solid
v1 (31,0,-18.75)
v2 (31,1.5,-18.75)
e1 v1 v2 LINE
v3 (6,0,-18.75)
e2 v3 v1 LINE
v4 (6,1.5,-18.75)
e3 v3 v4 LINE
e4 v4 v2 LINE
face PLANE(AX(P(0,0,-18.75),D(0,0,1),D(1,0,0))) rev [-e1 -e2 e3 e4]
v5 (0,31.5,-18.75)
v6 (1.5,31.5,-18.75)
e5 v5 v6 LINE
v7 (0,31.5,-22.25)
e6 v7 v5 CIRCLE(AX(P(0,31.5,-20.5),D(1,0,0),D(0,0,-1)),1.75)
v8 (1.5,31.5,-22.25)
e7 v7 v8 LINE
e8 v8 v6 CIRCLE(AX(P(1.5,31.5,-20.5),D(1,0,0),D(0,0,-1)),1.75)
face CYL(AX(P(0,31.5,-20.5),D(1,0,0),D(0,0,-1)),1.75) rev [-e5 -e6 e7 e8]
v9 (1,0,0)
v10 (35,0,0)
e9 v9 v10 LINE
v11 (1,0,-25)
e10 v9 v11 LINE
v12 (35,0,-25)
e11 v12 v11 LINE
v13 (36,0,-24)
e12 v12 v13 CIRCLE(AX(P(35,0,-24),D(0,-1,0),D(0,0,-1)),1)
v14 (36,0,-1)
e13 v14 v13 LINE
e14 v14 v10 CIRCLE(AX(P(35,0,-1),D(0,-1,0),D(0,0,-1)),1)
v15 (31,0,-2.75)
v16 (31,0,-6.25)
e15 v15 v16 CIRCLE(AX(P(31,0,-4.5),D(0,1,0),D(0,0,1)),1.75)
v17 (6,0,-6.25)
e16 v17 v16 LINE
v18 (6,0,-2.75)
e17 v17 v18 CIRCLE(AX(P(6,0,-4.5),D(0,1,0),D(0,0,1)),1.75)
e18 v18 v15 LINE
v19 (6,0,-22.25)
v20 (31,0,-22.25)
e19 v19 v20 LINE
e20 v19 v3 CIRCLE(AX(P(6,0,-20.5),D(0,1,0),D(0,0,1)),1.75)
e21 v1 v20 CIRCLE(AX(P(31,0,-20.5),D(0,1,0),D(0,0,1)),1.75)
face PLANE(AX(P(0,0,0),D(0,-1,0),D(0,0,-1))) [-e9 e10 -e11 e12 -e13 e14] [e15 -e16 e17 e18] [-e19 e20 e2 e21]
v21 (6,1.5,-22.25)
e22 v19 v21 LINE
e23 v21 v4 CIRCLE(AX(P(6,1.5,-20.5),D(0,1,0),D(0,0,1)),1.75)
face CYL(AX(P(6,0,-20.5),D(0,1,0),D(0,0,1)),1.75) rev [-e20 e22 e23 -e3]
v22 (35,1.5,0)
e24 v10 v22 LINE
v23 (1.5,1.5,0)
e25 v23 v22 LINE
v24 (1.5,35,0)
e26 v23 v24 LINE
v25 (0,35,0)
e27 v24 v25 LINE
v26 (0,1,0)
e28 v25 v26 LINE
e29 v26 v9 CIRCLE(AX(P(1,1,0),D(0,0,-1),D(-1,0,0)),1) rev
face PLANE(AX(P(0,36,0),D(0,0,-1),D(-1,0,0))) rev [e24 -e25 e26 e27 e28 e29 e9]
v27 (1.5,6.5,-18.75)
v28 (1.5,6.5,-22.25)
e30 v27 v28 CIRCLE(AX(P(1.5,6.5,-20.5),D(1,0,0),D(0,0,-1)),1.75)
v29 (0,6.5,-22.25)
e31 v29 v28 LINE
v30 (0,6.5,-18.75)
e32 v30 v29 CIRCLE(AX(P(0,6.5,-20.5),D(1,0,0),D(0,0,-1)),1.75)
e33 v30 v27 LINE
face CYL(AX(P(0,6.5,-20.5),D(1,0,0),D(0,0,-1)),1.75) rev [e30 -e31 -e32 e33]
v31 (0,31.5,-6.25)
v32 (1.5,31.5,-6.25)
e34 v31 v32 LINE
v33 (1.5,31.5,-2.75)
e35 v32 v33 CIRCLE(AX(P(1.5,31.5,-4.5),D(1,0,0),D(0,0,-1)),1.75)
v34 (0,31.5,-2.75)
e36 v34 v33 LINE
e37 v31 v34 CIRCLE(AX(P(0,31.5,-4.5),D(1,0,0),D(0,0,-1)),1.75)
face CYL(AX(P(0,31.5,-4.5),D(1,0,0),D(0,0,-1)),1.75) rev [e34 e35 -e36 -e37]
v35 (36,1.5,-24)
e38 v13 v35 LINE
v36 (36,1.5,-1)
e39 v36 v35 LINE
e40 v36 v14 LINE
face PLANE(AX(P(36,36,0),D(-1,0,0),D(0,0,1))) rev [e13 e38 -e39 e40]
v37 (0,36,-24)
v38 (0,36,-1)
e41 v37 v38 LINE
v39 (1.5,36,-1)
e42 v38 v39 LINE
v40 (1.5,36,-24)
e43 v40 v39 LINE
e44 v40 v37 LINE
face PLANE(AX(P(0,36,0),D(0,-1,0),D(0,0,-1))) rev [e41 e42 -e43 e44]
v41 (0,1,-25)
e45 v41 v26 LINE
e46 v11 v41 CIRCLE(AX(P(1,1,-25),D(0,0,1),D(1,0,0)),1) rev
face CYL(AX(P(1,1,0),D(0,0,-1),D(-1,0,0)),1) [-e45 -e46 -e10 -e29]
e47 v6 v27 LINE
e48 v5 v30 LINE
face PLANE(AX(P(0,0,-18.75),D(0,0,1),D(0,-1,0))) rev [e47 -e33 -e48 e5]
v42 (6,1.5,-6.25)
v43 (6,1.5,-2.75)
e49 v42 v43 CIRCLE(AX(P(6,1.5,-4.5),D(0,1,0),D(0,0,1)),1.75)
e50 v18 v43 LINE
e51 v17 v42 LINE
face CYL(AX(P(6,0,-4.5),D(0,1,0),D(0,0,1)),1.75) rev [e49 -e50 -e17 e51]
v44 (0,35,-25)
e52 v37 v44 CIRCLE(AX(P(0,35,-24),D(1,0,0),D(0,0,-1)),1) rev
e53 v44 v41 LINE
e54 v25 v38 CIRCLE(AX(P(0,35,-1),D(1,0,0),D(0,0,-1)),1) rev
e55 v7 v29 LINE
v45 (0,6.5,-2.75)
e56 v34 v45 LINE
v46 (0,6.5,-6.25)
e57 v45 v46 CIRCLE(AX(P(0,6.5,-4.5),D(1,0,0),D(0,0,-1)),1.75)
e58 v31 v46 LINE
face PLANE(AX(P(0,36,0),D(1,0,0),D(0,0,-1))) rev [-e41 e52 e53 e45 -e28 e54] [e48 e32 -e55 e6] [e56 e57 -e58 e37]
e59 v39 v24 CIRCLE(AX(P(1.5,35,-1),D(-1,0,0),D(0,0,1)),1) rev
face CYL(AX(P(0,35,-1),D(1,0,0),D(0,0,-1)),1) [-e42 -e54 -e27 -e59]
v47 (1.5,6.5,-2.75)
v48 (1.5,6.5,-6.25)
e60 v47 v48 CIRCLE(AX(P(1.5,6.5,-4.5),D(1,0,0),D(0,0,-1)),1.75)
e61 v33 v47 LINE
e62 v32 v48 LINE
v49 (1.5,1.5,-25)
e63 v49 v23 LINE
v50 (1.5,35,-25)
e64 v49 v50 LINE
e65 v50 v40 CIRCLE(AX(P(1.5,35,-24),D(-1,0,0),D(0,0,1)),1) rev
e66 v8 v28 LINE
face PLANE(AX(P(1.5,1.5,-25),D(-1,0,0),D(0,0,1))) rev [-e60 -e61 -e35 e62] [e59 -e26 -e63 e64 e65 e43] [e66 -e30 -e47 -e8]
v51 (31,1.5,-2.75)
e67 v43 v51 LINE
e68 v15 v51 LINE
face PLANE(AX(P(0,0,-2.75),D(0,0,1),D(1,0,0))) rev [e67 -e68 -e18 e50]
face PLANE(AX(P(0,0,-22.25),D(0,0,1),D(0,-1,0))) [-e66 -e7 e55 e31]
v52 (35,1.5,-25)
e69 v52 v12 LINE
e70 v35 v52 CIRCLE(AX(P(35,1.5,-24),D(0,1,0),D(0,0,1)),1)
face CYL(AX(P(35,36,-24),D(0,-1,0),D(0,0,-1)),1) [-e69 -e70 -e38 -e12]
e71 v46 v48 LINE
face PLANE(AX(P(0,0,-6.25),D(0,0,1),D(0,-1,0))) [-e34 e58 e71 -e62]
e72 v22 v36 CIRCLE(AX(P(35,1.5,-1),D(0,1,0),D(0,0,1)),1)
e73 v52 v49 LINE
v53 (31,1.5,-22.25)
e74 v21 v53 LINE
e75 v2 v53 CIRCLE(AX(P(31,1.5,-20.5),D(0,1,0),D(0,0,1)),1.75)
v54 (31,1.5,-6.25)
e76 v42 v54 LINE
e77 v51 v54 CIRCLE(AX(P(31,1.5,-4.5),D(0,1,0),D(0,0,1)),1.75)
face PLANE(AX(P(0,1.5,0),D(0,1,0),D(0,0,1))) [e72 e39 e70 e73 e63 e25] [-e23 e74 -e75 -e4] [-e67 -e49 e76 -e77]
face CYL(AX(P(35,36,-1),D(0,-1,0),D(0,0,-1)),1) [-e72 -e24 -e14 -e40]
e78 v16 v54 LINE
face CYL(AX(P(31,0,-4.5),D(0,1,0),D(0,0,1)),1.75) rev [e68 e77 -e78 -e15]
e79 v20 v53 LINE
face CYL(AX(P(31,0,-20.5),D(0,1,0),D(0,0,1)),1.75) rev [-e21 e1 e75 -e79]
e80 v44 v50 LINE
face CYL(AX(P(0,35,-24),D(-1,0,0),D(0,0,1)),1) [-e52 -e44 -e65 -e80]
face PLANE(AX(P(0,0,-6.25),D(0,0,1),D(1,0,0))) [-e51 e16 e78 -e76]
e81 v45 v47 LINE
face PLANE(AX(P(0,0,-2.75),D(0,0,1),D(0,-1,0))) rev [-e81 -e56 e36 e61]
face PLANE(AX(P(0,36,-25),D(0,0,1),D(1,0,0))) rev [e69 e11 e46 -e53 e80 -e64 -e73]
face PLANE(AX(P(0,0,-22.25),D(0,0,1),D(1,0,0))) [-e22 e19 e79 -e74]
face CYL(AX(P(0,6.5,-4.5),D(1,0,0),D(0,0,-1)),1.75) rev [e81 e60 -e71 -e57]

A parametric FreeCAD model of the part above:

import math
import FreeCAD as App
import Part
import Sketcher


def edges_at(feature, points):
    """Names of the edges that pass closest to the given points."""
    edges = feature.Shape.Edges
    near = lambda p: min(range(len(edges)), key=lambda i: edges[i].distToShape(Part.Vertex(*p))[0])
    return sorted({f"Edge{near(p) + 1}" for p in points})

doc = App.newDocument("Part")
body = doc.addObject("PartDesign::Body", "Body")

# Sketch on XZ plane
sketch1 = doc.addObject("Sketcher::SketchObject", "Sketch")
body.addObject(sketch1)
sketch1.AttachmentSupport = (doc.XZ_Plane, [""])
sketch1.MapMode = "FlatFace"
sketch1.addGeometry(Part.LineSegment(App.Vector(0, -25, 0), App.Vector(0, 0, 0)), False)
sketch1.addGeometry(Part.LineSegment(App.Vector(0, 0, 0), App.Vector(36, 0, 0)), False)
sketch1.addGeometry(Part.LineSegment(App.Vector(36, 0, 0), App.Vector(36, -25, 0)), False)
sketch1.addGeometry(Part.LineSegment(App.Vector(36, -25, 0), App.Vector(0, -25, 0)), False)
sketch1.addConstraint(Sketcher.Constraint("Coincident", 0, 2, 1, 1))
sketch1.addConstraint(Sketcher.Constraint("Coincident", 1, 2, 2, 1))
sketch1.addConstraint(Sketcher.Constraint("Coincident", 2, 2, 3, 1))
sketch1.addConstraint(Sketcher.Constraint("Coincident", 3, 2, 0, 1))
sketch1.addConstraint(Sketcher.Constraint("Vertical", 0))
sketch1.addConstraint(Sketcher.Constraint("Horizontal", 1))
sketch1.addConstraint(Sketcher.Constraint("Vertical", 2))
sketch1.addConstraint(Sketcher.Constraint("Horizontal", 3))
sketch1.addConstraint(Sketcher.Constraint("Coincident", 0, 2, -1, 1))
sketch1.addConstraint(Sketcher.Constraint("DistanceX", 1, 1, 1, 2, 36.0))
sketch1.addConstraint(Sketcher.Constraint("DistanceY", 0, 1, 0, 2, 25.0))
pad1 = doc.addObject("PartDesign::Pad", "Pad")
body.addObject(pad1)
pad1.Profile = sketch1
pad1.Length = 36
pad1.Reversed = True

# Sketch on XZ plane
sketch2 = doc.addObject("Sketcher::SketchObject", "Sketch001")
body.addObject(sketch2)
sketch2.AttachmentSupport = (doc.XZ_Plane, [""])
sketch2.MapMode = "FlatFace"
sketch2.AttachmentOffset = App.Placement(App.Vector(0, 0, -36), App.Rotation())
sketch2.addGeometry(Part.LineSegment(App.Vector(2, -25, 0), App.Vector(2, 0, 0)), False)
sketch2.addGeometry(Part.LineSegment(App.Vector(2, 0, 0), App.Vector(36, 0, 0)), False)
sketch2.addGeometry(Part.LineSegment(App.Vector(36, 0, 0), App.Vector(36, -25, 0)), False)
sketch2.addGeometry(Part.LineSegment(App.Vector(36, -25, 0), App.Vector(2, -25, 0)), False)
sketch2.addConstraint(Sketcher.Constraint("Coincident", 0, 2, 1, 1))
sketch2.addConstraint(Sketcher.Constraint("Coincident", 1, 2, 2, 1))
sketch2.addConstraint(Sketcher.Constraint("Coincident", 2, 2, 3, 1))
sketch2.addConstraint(Sketcher.Constraint("Coincident", 3, 2, 0, 1))
sketch2.addConstraint(Sketcher.Constraint("Vertical", 0))
sketch2.addConstraint(Sketcher.Constraint("Horizontal", 1))
sketch2.addConstraint(Sketcher.Constraint("Vertical", 2))
sketch2.addConstraint(Sketcher.Constraint("Horizontal", 3))
sketch2.addConstraint(Sketcher.Constraint("PointOnObject", 0, 2, -1))
sketch2.addConstraint(Sketcher.Constraint("DistanceY", 0, 1, 0, 2, 25.0))
sketch2.addConstraint(Sketcher.Constraint("DistanceX", 1, 1, 1, 2, 34.5))
sketch2.addConstraint(Sketcher.Constraint("DistanceX", -1, 1, 1, 2, 36.0))
pocket1 = doc.addObject("PartDesign::Pocket", "Pocket")
body.addObject(pocket1)
pocket1.Profile = sketch2
pocket1.Length = 34.5
pocket1.Reversed = True
doc.recompute()

fillet = doc.addObject("PartDesign::Fillet", "Fillet")
body.addObject(fillet)
fillet.Base = (pocket1, edges_at(pocket1, [
    (0.75, 36, -25),
    (36, 0.75, -25),
    (36, 0.75, 0),
    (0, 0, -12.5),
    (0.75, 36, 0),
]))
fillet.Radius = 1

# Sketch on XZ plane
sketch3 = doc.addObject("Sketcher::SketchObject", "Sketch002")
body.addObject(sketch3)
sketch3.AttachmentSupport = (doc.XZ_Plane, [""])
sketch3.MapMode = "FlatFace"
sketch3.AttachmentOffset = App.Placement(App.Vector(0, 0, -1.5), App.Rotation())
sketch3.addGeometry(Part.LineSegment(App.Vector(31, -6.2, 0), App.Vector(6, -6.2, 0)), False)
sketch3.addGeometry(Part.ArcOfCircle(Part.Circle(App.Vector(6, -4.5, 0), App.Vector(0, 0, 1), 1.8), math.radians(90), math.radians(270)), False)
sketch3.addGeometry(Part.LineSegment(App.Vector(6, -2.8, 0), App.Vector(31, -2.8, 0)), False)
sketch3.addGeometry(Part.ArcOfCircle(Part.Circle(App.Vector(31, -4.5, 0), App.Vector(0, 0, 1), 1.8), math.radians(-90), math.radians(90)), False)
sketch3.addGeometry(Part.LineSegment(App.Vector(6, -18.8, 0), App.Vector(31, -18.8, 0)), False)
sketch3.addGeometry(Part.ArcOfCircle(Part.Circle(App.Vector(31, -20.5, 0), App.Vector(0, 0, 1), 1.8), math.radians(-90), math.radians(90)), False)
sketch3.addGeometry(Part.LineSegment(App.Vector(31, -22.2, 0), App.Vector(6, -22.2, 0)), False)
sketch3.addGeometry(Part.ArcOfCircle(Part.Circle(App.Vector(6, -20.5, 0), App.Vector(0, 0, 1), 1.8), math.radians(90), math.radians(270)), False)
sketch3.addConstraint(Sketcher.Constraint("Tangent", 0, 2, 1, 2))
sketch3.addConstraint(Sketcher.Constraint("Tangent", 1, 1, 2, 1))
sketch3.addConstraint(Sketcher.Constraint("Tangent", 2, 2, 3, 2))
sketch3.addConstraint(Sketcher.Constraint("Tangent", 3, 1, 0, 1))
sketch3.addConstraint(Sketcher.Constraint("Tangent", 4, 2, 5, 2))
sketch3.addConstraint(Sketcher.Constraint("Tangent", 5, 1, 6, 1))
sketch3.addConstraint(Sketcher.Constraint("Tangent", 6, 2, 7, 2))
sketch3.addConstraint(Sketcher.Constraint("Tangent", 7, 1, 4, 1))
sketch3.addConstraint(Sketcher.Constraint("Horizontal", 0))
sketch3.addConstraint(Sketcher.Constraint("Horizontal", 2))
sketch3.addConstraint(Sketcher.Constraint("Horizontal", 4))
sketch3.addConstraint(Sketcher.Constraint("Horizontal", 6))
sketch3.addConstraint(Sketcher.Constraint("Equal", 3, 5))
sketch3.addConstraint(Sketcher.Constraint("Vertical", 3, 3, 5, 3))
sketch3.addConstraint(Sketcher.Constraint("Vertical", 1, 3, 7, 3))
sketch3.addConstraint(Sketcher.Constraint("DistanceX", 0, 2, 0, 1, 25.0))
sketch3.addConstraint(Sketcher.Constraint("Radius", 1, 1.75))
sketch3.addConstraint(Sketcher.Constraint("DistanceX", -1, 1, 1, 3, 6.0))
sketch3.addConstraint(Sketcher.Constraint("DistanceY", 5, 3, 3, 3, 16.0))
sketch3.addConstraint(Sketcher.Constraint("DistanceY", 1, 3, -1, 1, 4.5))
pocket2 = doc.addObject("PartDesign::Pocket", "Pocket001")
body.addObject(pocket2)
pocket2.Profile = sketch3
pocket2.Length = 1.5
pocket2.Reversed = True

# Sketch on YZ plane
sketch4 = doc.addObject("Sketcher::SketchObject", "Sketch003")
body.addObject(sketch4)
sketch4.AttachmentSupport = (doc.YZ_Plane, [""])
sketch4.MapMode = "FlatFace"
sketch4.AttachmentOffset = App.Placement(App.Vector(0, 0, 1.5), App.Rotation())
sketch4.addGeometry(Part.LineSegment(App.Vector(6.5, -22.2, 0), App.Vector(31.5, -22.2, 0)), False)
sketch4.addGeometry(Part.ArcOfCircle(Part.Circle(App.Vector(31.5, -20.5, 0), App.Vector(0, 0, 1), 1.8), math.radians(-90), math.radians(90)), False)
sketch4.addGeometry(Part.LineSegment(App.Vector(31.5, -18.8, 0), App.Vector(6.5, -18.8, 0)), False)
sketch4.addGeometry(Part.ArcOfCircle(Part.Circle(App.Vector(6.5, -20.5, 0), App.Vector(0, 0, 1), 1.8), math.radians(90), math.radians(270)), False)
sketch4.addGeometry(Part.ArcOfCircle(Part.Circle(App.Vector(31.5, -4.5, 0), App.Vector(0, 0, 1), 1.8), math.radians(-90), math.radians(90)), False)
sketch4.addGeometry(Part.LineSegment(App.Vector(31.5, -2.8, 0), App.Vector(6.5, -2.8, 0)), False)
sketch4.addGeometry(Part.ArcOfCircle(Part.Circle(App.Vector(6.5, -4.5, 0), App.Vector(0, 0, 1), 1.8), math.radians(90), math.radians(270)), False)
sketch4.addGeometry(Part.LineSegment(App.Vector(6.5, -6.2, 0), App.Vector(31.5, -6.2, 0)), False)
sketch4.addConstraint(Sketcher.Constraint("Tangent", 0, 2, 1, 1))
sketch4.addConstraint(Sketcher.Constraint("Tangent", 1, 2, 2, 1))
sketch4.addConstraint(Sketcher.Constraint("Tangent", 2, 2, 3, 1))
sketch4.addConstraint(Sketcher.Constraint("Tangent", 3, 2, 0, 1))
sketch4.addConstraint(Sketcher.Constraint("Tangent", 4, 2, 5, 1))
sketch4.addConstraint(Sketcher.Constraint("Tangent", 5, 2, 6, 1))
sketch4.addConstraint(Sketcher.Constraint("Tangent", 6, 2, 7, 1))
sketch4.addConstraint(Sketcher.Constraint("Tangent", 7, 2, 4, 1))
sketch4.addConstraint(Sketcher.Constraint("Horizontal", 0))
sketch4.addConstraint(Sketcher.Constraint("Horizontal", 2))
sketch4.addConstraint(Sketcher.Constraint("Horizontal", 5))
sketch4.addConstraint(Sketcher.Constraint("Horizontal", 7))
sketch4.addConstraint(Sketcher.Constraint("Equal", 3, 4))
sketch4.addConstraint(Sketcher.Constraint("Vertical", 1, 3, 4, 3))
sketch4.addConstraint(Sketcher.Constraint("Vertical", 3, 3, 6, 3))
sketch4.addConstraint(Sketcher.Constraint("DistanceX", 0, 1, 0, 2, 25.0))
sketch4.addConstraint(Sketcher.Constraint("Radius", 1, 1.75))
sketch4.addConstraint(Sketcher.Constraint("DistanceY", 1, 3, 4, 3, 16.0))
sketch4.addConstraint(Sketcher.Constraint("DistanceX", -1, 1, 1, 3, 31.5))
sketch4.addConstraint(Sketcher.Constraint("DistanceY", 1, 3, -1, 1, 20.5))
pocket3 = doc.addObject("PartDesign::Pocket", "Pocket002")
body.addObject(pocket3)
pocket3.Profile = sketch4
pocket3.Length = 1.5

doc.recompute()
